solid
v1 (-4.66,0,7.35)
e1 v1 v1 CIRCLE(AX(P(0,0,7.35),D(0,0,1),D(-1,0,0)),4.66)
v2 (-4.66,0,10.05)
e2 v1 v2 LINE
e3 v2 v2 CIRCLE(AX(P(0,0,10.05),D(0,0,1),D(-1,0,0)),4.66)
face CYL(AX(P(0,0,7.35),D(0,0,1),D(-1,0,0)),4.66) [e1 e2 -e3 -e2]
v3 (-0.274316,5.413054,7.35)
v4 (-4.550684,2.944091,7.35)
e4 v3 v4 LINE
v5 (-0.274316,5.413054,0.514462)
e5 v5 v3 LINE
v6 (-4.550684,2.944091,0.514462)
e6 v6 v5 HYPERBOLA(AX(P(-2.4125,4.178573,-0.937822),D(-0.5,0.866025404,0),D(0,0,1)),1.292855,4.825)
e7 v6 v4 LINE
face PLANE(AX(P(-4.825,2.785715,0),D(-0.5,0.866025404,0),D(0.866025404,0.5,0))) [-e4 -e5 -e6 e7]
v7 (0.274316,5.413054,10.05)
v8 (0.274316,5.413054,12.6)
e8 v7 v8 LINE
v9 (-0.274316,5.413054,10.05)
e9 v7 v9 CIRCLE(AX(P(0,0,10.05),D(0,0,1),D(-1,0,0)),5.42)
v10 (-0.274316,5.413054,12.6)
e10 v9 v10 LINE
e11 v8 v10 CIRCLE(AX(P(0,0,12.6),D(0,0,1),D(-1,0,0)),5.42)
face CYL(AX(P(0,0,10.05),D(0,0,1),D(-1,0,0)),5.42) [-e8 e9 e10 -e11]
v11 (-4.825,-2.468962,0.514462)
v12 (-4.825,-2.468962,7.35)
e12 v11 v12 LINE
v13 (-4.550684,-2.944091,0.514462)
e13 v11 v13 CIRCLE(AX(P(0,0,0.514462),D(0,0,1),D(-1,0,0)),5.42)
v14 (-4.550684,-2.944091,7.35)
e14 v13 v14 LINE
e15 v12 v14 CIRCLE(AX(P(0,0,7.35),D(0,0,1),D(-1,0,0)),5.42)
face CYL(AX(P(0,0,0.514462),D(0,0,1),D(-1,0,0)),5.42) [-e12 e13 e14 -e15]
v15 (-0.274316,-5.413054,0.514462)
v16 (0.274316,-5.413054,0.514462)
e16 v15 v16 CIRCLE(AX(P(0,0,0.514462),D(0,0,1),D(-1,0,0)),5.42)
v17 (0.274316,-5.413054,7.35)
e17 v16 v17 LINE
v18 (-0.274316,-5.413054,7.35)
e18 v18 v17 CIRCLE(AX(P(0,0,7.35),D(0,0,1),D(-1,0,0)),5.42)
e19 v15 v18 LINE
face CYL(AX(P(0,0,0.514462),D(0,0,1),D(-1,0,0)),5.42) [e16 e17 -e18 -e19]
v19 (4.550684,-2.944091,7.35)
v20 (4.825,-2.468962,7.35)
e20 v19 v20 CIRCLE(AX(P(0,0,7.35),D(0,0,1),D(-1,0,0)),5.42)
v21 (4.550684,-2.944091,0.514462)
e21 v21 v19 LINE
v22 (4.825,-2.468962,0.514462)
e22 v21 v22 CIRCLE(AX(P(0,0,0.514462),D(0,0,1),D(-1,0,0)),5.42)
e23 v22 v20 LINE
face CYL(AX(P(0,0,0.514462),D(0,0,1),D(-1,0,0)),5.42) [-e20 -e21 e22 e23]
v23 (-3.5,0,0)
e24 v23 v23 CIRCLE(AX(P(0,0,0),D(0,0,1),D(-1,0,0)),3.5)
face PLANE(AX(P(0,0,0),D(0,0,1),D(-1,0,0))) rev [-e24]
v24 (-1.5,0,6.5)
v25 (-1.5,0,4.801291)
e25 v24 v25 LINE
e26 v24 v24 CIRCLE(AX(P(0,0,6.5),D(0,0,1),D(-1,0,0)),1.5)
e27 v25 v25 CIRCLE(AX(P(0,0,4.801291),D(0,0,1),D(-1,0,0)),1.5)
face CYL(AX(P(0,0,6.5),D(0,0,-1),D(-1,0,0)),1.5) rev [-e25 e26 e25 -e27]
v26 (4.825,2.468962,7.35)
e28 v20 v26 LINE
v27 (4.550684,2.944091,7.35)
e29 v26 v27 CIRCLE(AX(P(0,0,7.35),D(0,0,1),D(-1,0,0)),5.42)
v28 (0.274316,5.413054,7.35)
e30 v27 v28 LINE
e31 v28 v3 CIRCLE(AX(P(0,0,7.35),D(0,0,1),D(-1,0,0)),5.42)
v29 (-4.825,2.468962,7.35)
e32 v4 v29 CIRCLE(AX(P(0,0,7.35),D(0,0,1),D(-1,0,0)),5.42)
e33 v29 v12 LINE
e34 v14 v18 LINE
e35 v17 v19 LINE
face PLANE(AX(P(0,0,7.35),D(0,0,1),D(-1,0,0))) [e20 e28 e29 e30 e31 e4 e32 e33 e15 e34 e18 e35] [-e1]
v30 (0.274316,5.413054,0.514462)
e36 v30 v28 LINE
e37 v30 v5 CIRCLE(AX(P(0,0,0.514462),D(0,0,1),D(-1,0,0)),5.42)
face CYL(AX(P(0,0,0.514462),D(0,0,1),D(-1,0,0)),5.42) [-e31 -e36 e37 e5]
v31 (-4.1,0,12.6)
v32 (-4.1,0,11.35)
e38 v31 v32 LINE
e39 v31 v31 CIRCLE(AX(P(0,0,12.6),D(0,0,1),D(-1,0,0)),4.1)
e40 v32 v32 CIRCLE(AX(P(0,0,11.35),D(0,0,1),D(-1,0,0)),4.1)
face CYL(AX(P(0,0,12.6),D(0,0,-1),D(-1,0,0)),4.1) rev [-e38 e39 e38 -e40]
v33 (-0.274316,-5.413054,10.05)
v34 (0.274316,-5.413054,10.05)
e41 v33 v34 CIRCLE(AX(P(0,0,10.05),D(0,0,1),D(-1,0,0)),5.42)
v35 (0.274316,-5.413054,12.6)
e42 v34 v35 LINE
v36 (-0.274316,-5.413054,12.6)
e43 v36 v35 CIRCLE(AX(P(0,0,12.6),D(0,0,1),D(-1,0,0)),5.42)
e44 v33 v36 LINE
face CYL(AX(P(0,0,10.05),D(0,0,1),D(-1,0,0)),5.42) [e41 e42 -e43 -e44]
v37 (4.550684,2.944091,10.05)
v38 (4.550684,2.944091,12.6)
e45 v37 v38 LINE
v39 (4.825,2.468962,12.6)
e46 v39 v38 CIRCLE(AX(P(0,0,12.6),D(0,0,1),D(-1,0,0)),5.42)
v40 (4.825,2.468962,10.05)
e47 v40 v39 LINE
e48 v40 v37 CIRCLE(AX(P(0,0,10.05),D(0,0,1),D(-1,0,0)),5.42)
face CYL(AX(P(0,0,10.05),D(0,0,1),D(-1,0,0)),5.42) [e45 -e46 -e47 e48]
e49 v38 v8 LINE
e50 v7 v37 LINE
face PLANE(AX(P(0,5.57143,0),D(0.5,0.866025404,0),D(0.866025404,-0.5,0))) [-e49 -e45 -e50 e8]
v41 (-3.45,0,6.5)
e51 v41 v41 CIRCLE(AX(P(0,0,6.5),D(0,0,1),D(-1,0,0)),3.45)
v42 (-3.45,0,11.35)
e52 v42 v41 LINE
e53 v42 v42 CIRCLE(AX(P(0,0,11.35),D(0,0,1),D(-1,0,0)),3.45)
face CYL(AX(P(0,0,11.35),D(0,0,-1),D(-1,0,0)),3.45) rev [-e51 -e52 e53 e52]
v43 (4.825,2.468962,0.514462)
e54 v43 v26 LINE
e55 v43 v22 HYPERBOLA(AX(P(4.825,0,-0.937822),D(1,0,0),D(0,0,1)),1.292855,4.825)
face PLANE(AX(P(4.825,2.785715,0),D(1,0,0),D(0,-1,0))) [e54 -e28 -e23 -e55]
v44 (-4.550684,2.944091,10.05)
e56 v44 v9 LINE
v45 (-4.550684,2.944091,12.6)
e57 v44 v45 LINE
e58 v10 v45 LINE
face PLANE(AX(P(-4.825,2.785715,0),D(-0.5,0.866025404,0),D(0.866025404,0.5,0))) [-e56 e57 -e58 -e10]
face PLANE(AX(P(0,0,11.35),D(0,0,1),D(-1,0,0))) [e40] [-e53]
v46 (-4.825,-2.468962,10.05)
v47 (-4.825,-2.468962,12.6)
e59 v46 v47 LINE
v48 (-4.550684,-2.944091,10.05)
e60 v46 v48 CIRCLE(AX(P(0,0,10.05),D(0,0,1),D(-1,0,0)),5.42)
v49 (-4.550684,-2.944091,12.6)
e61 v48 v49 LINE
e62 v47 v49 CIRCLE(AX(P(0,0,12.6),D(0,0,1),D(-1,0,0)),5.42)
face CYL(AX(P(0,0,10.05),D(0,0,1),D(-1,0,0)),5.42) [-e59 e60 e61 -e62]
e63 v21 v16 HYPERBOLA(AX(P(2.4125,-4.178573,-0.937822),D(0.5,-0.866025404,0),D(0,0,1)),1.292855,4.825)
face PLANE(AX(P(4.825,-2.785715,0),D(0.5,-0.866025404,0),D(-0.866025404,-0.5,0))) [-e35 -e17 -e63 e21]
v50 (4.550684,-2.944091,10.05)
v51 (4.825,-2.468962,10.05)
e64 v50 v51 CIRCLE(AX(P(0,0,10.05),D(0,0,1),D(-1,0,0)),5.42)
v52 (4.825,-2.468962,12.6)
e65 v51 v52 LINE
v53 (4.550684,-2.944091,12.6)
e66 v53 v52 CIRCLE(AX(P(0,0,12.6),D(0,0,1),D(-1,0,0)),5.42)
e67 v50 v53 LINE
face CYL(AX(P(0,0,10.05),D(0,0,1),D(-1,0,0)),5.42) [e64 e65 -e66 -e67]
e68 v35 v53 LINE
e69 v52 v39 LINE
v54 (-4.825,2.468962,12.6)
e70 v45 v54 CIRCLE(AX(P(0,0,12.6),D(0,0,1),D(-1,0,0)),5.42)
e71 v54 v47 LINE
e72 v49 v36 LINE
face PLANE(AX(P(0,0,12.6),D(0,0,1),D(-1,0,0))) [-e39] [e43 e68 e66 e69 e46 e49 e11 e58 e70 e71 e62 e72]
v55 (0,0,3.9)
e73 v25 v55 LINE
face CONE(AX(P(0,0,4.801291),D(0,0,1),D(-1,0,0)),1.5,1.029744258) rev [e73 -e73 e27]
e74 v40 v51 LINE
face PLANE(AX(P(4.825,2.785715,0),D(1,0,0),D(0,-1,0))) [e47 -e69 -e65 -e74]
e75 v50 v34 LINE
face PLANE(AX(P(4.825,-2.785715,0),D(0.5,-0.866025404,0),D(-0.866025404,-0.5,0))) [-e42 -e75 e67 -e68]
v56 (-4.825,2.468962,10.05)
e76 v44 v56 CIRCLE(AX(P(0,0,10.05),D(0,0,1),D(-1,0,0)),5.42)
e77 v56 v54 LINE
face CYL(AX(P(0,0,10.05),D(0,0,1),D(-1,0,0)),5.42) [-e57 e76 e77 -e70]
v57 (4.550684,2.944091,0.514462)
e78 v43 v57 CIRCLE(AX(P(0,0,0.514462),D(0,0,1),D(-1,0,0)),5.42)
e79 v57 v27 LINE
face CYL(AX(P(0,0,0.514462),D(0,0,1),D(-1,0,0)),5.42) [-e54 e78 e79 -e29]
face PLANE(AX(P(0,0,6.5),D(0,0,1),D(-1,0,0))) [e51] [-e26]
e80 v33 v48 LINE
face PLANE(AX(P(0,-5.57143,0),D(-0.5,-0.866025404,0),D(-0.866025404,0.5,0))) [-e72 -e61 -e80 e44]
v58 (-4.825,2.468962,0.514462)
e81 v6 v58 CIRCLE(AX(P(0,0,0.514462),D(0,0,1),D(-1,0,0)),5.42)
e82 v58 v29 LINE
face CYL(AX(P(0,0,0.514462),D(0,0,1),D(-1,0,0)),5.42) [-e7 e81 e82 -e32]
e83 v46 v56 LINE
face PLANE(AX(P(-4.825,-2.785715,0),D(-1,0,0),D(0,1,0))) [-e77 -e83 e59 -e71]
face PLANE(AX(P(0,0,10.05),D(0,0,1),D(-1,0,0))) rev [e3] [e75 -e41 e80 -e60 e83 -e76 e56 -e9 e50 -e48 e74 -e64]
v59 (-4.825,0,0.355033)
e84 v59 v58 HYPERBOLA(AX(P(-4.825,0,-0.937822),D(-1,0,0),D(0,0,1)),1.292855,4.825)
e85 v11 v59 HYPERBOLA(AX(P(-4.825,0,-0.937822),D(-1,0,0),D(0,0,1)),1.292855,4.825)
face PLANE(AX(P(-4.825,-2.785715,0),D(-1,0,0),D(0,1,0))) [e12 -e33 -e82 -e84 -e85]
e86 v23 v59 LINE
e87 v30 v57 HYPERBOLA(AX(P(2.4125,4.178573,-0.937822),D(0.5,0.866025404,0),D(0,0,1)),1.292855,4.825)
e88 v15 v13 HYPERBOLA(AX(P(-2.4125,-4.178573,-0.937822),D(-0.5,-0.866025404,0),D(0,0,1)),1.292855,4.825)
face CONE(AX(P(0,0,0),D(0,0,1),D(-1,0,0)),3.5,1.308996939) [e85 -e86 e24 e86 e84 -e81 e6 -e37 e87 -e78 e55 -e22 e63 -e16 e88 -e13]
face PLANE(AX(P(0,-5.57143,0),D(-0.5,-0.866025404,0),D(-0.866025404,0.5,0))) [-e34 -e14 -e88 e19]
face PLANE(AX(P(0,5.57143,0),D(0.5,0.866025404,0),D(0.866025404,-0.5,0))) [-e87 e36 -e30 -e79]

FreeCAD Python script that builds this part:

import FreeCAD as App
import Part
import Sketcher
from FreeCAD import Vector
Q = App.Units.Quantity

doc = App.newDocument("Part")
body = doc.addObject("PartDesign::Body", "Body")

# Sketch on YZ plane
sketch1 = body.newObject("Sketcher::SketchObject", "Sketch")
sketch1.AttachmentSupport = (doc.getObject("YZ_Plane"), [""])
sketch1.MapMode = "FlatFace"
sketch1.addGeometry(Part.LineSegment(Vector(0, 0, 0), Vector(3.5, 0, 0)), False)
sketch1.addGeometry(Part.LineSegment(Vector(3.5, 0, 0), Vector(5.42, 0.514462, 0)), False)
sketch1.addGeometry(Part.LineSegment(Vector(5.42, 0.514462, 0), Vector(5.42, 7.35, 0)), False)
sketch1.addGeometry(Part.LineSegment(Vector(5.42, 7.35, 0), Vector(4.66, 7.35, 0)), False)
sketch1.addGeometry(Part.LineSegment(Vector(4.66, 7.35, 0), Vector(4.66, 10.05, 0)), False)
sketch1.addGeometry(Part.LineSegment(Vector(4.66, 10.05, 0), Vector(5.42, 10.05, 0)), False)
sketch1.addGeometry(Part.LineSegment(Vector(5.42, 10.05, 0), Vector(5.42, 12.6, 0)), False)
sketch1.addGeometry(Part.LineSegment(Vector(5.42, 12.6, 0), Vector(4.1, 12.6, 0)), False)
sketch1.addGeometry(Part.LineSegment(Vector(4.1, 12.6, 0), Vector(4.1, 11.35, 0)), False)
sketch1.addGeometry(Part.LineSegment(Vector(4.1, 11.35, 0), Vector(3.45, 11.35, 0)), False)
sketch1.addGeometry(Part.LineSegment(Vector(3.45, 11.35, 0), Vector(3.45, 6.5, 0)), False)
sketch1.addGeometry(Part.LineSegment(Vector(3.45, 6.5, 0), Vector(1.5, 6.5, 0)), False)
sketch1.addGeometry(Part.LineSegment(Vector(1.5, 6.5, 0), Vector(1.5, 4.801291, 0)), False)
sketch1.addGeometry(Part.LineSegment(Vector(1.5, 4.801291, 0), Vector(0, 3.9, 0)), False)
sketch1.addGeometry(Part.LineSegment(Vector(0, 3.9, 0), Vector(0, 0, 0)), False)
sketch1.addConstraint(Sketcher.Constraint("Coincident", 0, 2, 1, 1))
sketch1.addConstraint(Sketcher.Constraint("Coincident", 1, 2, 2, 1))
sketch1.addConstraint(Sketcher.Constraint("Coincident", 2, 2, 3, 1))
sketch1.addConstraint(Sketcher.Constraint("Coincident", 3, 2, 4, 1))
sketch1.addConstraint(Sketcher.Constraint("Coincident", 4, 2, 5, 1))
sketch1.addConstraint(Sketcher.Constraint("Coincident", 5, 2, 6, 1))
sketch1.addConstraint(Sketcher.Constraint("Coincident", 6, 2, 7, 1))
sketch1.addConstraint(Sketcher.Constraint("Coincident", 7, 2, 8, 1))
sketch1.addConstraint(Sketcher.Constraint("Coincident", 8, 2, 9, 1))
sketch1.addConstraint(Sketcher.Constraint("Coincident", 9, 2, 10, 1))
sketch1.addConstraint(Sketcher.Constraint("Coincident", 10, 2, 11, 1))
sketch1.addConstraint(Sketcher.Constraint("Coincident", 11, 2, 12, 1))
sketch1.addConstraint(Sketcher.Constraint("Coincident", 12, 2, 13, 1))
sketch1.addConstraint(Sketcher.Constraint("Coincident", 13, 2, 14, 1))
sketch1.addConstraint(Sketcher.Constraint("Coincident", 14, 2, 0, 1))
sketch1.addConstraint(Sketcher.Constraint("Horizontal", 0))
sketch1.addConstraint(Sketcher.Constraint("Vertical", 2))
sketch1.addConstraint(Sketcher.Constraint("Horizontal", 3))
sketch1.addConstraint(Sketcher.Constraint("Vertical", 4))
sketch1.addConstraint(Sketcher.Constraint("Horizontal", 5))
sketch1.addConstraint(Sketcher.Constraint("Vertical", 6))
sketch1.addConstraint(Sketcher.Constraint("Horizontal", 7))
sketch1.addConstraint(Sketcher.Constraint("Vertical", 8))
sketch1.addConstraint(Sketcher.Constraint("Horizontal", 9))
sketch1.addConstraint(Sketcher.Constraint("Vertical", 10))
sketch1.addConstraint(Sketcher.Constraint("Horizontal", 11))
sketch1.addConstraint(Sketcher.Constraint("Vertical", 12))
sketch1.addConstraint(Sketcher.Constraint("Vertical", 14))
sketch1.addConstraint(Sketcher.Constraint("Coincident", 14, 2, -1, 1))
sketch1.addConstraint(Sketcher.Constraint("Vertical", 2, 2, 5, 2))
sketch1.addConstraint(Sketcher.Constraint("Angle", 1, Q("15 deg")))
sketch1.addConstraint(Sketcher.Constraint("Angle", 13, Q("-149 deg")))
sketch1.addConstraint(Sketcher.Constraint("DistanceX", 0, 1, 0, 2, Q("3.5 mm")))
sketch1.addConstraint(Sketcher.Constraint("DistanceY", 4, 1, 4, 2, Q("2.7 mm")))
sketch1.addConstraint(Sketcher.Constraint("DistanceY", 14, 2, 14, 1, Q("3.9 mm")))
sketch1.addConstraint(Sketcher.Constraint("DistanceY", 3, 2, 8, 2, Q("4 mm")))
sketch1.addConstraint(Sketcher.Constraint("DistanceX", 12, 2, 0, 2, Q("2 mm")))
sketch1.addConstraint(Sketcher.Constraint("DistanceX", 3, 2, 3, 1, Q("0.76 mm")))
sketch1.addConstraint(Sketcher.Constraint("DistanceX", 7, 2, 7, 1, Q("1.32 mm")))
sketch1.addConstraint(Sketcher.Constraint("DistanceX", 9, 2, 9, 1, Q("0.65 mm")))
sketch1.addConstraint(Sketcher.Constraint("DistanceX", 11, 2, 11, 1, Q("1.95 mm")))
sketch1.addConstraint(Sketcher.Constraint("DistanceY", 6, 1, 6, 2, Q("2.55 mm")))
sketch1.addConstraint(Sketcher.Constraint("DistanceY", 10, 2, 10, 1, Q("4.85 mm")))
sketch1.addConstraint(Sketcher.Constraint("DistanceY", -1, 1, 6, 2, Q("12.6 mm")))
revolution = body.newObject("PartDesign::Revolution", "Revolution")
revolution.Profile = sketch1
revolution.ReferenceAxis = (sketch1, ["V_Axis"])
revolution.Angle = 360

# Sketch on XY plane
sketch2 = body.newObject("Sketcher::SketchObject", "Sketch001")
sketch2.AttachmentSupport = (doc.getObject("XY_Plane"), [""])
sketch2.MapMode = "FlatFace"
sketch2.addGeometry(Part.LineSegment(Vector(8.404, 8.404, 0), Vector(8.404, -8.404, 0)), False)
sketch2.addGeometry(Part.LineSegment(Vector(8.404, -8.404, 0), Vector(-8.404, -8.404, 0)), False)
sketch2.addGeometry(Part.LineSegment(Vector(-8.404, -8.404, 0), Vector(-8.404, 8.404, 0)), False)
sketch2.addGeometry(Part.LineSegment(Vector(-8.404, 8.404, 0), Vector(8.404, 8.404, 0)), False)
sketch2.addGeometry(Part.LineSegment(Vector(0, 5.57143, 0), Vector(-4.825, 2.785715, 0)), False)
sketch2.addGeometry(Part.LineSegment(Vector(-4.825, 2.785715, 0), Vector(-4.825, -2.785715, 0)), False)
sketch2.addGeometry(Part.LineSegment(Vector(-4.825, -2.785715, 0), Vector(0, -5.57143, 0)), False)
sketch2.addGeometry(Part.LineSegment(Vector(0, -5.57143, 0), Vector(4.825, -2.785715, 0)), False)
sketch2.addGeometry(Part.LineSegment(Vector(4.825, -2.785715, 0), Vector(4.825, 2.785715, 0)), False)
sketch2.addGeometry(Part.LineSegment(Vector(4.825, 2.785715, 0), Vector(0, 5.57143, 0)), False)
sketch2.addConstraint(Sketcher.Constraint("Coincident", 0, 2, 1, 1))
sketch2.addConstraint(Sketcher.Constraint("Coincident", 1, 2, 2, 1))
sketch2.addConstraint(Sketcher.Constraint("Coincident", 2, 2, 3, 1))
sketch2.addConstraint(Sketcher.Constraint("Coincident", 3, 2, 0, 1))
sketch2.addConstraint(Sketcher.Constraint("Coincident", 4, 2, 5, 1))
sketch2.addConstraint(Sketcher.Constraint("Coincident", 5, 2, 6, 1))
sketch2.addConstraint(Sketcher.Constraint("Coincident", 6, 2, 7, 1))
sketch2.addConstraint(Sketcher.Constraint("Coincident", 7, 2, 8, 1))
sketch2.addConstraint(Sketcher.Constraint("Coincident", 8, 2, 9, 1))
sketch2.addConstraint(Sketcher.Constraint("Coincident", 9, 2, 4, 1))
sketch2.addConstraint(Sketcher.Constraint("Vertical", 0))
sketch2.addConstraint(Sketcher.Constraint("Horizontal", 1))
sketch2.addConstraint(Sketcher.Constraint("Vertical", 2))
sketch2.addConstraint(Sketcher.Constraint("Horizontal", 3))
sketch2.addConstraint(Sketcher.Constraint("Vertical", 5))
sketch2.addConstraint(Sketcher.Constraint("Vertical", 8))
sketch2.addConstraint(Sketcher.Constraint("Symmetric", 0, 2, 2, 2, -1, 1))
sketch2.addConstraint(Sketcher.Constraint("Symmetric", 4, 2, 7, 2, -1, 1))
sketch2.addConstraint(Sketcher.Constraint("Symmetric", 6, 2, 9, 2, -1, 1))
sketch2.addConstraint(Sketcher.Constraint("PointOnObject", 6, 2, -2))
sketch2.addConstraint(Sketcher.Constraint("Parallel", 6, 9))
sketch2.addConstraint(Sketcher.Constraint("Horizontal", 5, 2, 7, 2))
sketch2.addConstraint(Sketcher.Constraint("Equal", 3, 0))
sketch2.addConstraint(Sketcher.Constraint("Angle", 4, Q("-150 deg")))
sketch2.addConstraint(Sketcher.Constraint("DistanceX", 1, 2, 1, 1, Q("16.808 mm")))
sketch2.addConstraint(Sketcher.Constraint("DistanceX", 5, 2, 7, 2, Q("9.65 mm")))
sketch2.addConstraint(Sketcher.Constraint("DistanceY", 5, 2, 5, 1, Q("5.57143 mm")))
pocket1 = body.newObject("PartDesign::Pocket", "Pocket")
pocket1.Profile = sketch2
pocket1.Type = "ThroughAll"
pocket1.Reversed = True

doc.recompute()
